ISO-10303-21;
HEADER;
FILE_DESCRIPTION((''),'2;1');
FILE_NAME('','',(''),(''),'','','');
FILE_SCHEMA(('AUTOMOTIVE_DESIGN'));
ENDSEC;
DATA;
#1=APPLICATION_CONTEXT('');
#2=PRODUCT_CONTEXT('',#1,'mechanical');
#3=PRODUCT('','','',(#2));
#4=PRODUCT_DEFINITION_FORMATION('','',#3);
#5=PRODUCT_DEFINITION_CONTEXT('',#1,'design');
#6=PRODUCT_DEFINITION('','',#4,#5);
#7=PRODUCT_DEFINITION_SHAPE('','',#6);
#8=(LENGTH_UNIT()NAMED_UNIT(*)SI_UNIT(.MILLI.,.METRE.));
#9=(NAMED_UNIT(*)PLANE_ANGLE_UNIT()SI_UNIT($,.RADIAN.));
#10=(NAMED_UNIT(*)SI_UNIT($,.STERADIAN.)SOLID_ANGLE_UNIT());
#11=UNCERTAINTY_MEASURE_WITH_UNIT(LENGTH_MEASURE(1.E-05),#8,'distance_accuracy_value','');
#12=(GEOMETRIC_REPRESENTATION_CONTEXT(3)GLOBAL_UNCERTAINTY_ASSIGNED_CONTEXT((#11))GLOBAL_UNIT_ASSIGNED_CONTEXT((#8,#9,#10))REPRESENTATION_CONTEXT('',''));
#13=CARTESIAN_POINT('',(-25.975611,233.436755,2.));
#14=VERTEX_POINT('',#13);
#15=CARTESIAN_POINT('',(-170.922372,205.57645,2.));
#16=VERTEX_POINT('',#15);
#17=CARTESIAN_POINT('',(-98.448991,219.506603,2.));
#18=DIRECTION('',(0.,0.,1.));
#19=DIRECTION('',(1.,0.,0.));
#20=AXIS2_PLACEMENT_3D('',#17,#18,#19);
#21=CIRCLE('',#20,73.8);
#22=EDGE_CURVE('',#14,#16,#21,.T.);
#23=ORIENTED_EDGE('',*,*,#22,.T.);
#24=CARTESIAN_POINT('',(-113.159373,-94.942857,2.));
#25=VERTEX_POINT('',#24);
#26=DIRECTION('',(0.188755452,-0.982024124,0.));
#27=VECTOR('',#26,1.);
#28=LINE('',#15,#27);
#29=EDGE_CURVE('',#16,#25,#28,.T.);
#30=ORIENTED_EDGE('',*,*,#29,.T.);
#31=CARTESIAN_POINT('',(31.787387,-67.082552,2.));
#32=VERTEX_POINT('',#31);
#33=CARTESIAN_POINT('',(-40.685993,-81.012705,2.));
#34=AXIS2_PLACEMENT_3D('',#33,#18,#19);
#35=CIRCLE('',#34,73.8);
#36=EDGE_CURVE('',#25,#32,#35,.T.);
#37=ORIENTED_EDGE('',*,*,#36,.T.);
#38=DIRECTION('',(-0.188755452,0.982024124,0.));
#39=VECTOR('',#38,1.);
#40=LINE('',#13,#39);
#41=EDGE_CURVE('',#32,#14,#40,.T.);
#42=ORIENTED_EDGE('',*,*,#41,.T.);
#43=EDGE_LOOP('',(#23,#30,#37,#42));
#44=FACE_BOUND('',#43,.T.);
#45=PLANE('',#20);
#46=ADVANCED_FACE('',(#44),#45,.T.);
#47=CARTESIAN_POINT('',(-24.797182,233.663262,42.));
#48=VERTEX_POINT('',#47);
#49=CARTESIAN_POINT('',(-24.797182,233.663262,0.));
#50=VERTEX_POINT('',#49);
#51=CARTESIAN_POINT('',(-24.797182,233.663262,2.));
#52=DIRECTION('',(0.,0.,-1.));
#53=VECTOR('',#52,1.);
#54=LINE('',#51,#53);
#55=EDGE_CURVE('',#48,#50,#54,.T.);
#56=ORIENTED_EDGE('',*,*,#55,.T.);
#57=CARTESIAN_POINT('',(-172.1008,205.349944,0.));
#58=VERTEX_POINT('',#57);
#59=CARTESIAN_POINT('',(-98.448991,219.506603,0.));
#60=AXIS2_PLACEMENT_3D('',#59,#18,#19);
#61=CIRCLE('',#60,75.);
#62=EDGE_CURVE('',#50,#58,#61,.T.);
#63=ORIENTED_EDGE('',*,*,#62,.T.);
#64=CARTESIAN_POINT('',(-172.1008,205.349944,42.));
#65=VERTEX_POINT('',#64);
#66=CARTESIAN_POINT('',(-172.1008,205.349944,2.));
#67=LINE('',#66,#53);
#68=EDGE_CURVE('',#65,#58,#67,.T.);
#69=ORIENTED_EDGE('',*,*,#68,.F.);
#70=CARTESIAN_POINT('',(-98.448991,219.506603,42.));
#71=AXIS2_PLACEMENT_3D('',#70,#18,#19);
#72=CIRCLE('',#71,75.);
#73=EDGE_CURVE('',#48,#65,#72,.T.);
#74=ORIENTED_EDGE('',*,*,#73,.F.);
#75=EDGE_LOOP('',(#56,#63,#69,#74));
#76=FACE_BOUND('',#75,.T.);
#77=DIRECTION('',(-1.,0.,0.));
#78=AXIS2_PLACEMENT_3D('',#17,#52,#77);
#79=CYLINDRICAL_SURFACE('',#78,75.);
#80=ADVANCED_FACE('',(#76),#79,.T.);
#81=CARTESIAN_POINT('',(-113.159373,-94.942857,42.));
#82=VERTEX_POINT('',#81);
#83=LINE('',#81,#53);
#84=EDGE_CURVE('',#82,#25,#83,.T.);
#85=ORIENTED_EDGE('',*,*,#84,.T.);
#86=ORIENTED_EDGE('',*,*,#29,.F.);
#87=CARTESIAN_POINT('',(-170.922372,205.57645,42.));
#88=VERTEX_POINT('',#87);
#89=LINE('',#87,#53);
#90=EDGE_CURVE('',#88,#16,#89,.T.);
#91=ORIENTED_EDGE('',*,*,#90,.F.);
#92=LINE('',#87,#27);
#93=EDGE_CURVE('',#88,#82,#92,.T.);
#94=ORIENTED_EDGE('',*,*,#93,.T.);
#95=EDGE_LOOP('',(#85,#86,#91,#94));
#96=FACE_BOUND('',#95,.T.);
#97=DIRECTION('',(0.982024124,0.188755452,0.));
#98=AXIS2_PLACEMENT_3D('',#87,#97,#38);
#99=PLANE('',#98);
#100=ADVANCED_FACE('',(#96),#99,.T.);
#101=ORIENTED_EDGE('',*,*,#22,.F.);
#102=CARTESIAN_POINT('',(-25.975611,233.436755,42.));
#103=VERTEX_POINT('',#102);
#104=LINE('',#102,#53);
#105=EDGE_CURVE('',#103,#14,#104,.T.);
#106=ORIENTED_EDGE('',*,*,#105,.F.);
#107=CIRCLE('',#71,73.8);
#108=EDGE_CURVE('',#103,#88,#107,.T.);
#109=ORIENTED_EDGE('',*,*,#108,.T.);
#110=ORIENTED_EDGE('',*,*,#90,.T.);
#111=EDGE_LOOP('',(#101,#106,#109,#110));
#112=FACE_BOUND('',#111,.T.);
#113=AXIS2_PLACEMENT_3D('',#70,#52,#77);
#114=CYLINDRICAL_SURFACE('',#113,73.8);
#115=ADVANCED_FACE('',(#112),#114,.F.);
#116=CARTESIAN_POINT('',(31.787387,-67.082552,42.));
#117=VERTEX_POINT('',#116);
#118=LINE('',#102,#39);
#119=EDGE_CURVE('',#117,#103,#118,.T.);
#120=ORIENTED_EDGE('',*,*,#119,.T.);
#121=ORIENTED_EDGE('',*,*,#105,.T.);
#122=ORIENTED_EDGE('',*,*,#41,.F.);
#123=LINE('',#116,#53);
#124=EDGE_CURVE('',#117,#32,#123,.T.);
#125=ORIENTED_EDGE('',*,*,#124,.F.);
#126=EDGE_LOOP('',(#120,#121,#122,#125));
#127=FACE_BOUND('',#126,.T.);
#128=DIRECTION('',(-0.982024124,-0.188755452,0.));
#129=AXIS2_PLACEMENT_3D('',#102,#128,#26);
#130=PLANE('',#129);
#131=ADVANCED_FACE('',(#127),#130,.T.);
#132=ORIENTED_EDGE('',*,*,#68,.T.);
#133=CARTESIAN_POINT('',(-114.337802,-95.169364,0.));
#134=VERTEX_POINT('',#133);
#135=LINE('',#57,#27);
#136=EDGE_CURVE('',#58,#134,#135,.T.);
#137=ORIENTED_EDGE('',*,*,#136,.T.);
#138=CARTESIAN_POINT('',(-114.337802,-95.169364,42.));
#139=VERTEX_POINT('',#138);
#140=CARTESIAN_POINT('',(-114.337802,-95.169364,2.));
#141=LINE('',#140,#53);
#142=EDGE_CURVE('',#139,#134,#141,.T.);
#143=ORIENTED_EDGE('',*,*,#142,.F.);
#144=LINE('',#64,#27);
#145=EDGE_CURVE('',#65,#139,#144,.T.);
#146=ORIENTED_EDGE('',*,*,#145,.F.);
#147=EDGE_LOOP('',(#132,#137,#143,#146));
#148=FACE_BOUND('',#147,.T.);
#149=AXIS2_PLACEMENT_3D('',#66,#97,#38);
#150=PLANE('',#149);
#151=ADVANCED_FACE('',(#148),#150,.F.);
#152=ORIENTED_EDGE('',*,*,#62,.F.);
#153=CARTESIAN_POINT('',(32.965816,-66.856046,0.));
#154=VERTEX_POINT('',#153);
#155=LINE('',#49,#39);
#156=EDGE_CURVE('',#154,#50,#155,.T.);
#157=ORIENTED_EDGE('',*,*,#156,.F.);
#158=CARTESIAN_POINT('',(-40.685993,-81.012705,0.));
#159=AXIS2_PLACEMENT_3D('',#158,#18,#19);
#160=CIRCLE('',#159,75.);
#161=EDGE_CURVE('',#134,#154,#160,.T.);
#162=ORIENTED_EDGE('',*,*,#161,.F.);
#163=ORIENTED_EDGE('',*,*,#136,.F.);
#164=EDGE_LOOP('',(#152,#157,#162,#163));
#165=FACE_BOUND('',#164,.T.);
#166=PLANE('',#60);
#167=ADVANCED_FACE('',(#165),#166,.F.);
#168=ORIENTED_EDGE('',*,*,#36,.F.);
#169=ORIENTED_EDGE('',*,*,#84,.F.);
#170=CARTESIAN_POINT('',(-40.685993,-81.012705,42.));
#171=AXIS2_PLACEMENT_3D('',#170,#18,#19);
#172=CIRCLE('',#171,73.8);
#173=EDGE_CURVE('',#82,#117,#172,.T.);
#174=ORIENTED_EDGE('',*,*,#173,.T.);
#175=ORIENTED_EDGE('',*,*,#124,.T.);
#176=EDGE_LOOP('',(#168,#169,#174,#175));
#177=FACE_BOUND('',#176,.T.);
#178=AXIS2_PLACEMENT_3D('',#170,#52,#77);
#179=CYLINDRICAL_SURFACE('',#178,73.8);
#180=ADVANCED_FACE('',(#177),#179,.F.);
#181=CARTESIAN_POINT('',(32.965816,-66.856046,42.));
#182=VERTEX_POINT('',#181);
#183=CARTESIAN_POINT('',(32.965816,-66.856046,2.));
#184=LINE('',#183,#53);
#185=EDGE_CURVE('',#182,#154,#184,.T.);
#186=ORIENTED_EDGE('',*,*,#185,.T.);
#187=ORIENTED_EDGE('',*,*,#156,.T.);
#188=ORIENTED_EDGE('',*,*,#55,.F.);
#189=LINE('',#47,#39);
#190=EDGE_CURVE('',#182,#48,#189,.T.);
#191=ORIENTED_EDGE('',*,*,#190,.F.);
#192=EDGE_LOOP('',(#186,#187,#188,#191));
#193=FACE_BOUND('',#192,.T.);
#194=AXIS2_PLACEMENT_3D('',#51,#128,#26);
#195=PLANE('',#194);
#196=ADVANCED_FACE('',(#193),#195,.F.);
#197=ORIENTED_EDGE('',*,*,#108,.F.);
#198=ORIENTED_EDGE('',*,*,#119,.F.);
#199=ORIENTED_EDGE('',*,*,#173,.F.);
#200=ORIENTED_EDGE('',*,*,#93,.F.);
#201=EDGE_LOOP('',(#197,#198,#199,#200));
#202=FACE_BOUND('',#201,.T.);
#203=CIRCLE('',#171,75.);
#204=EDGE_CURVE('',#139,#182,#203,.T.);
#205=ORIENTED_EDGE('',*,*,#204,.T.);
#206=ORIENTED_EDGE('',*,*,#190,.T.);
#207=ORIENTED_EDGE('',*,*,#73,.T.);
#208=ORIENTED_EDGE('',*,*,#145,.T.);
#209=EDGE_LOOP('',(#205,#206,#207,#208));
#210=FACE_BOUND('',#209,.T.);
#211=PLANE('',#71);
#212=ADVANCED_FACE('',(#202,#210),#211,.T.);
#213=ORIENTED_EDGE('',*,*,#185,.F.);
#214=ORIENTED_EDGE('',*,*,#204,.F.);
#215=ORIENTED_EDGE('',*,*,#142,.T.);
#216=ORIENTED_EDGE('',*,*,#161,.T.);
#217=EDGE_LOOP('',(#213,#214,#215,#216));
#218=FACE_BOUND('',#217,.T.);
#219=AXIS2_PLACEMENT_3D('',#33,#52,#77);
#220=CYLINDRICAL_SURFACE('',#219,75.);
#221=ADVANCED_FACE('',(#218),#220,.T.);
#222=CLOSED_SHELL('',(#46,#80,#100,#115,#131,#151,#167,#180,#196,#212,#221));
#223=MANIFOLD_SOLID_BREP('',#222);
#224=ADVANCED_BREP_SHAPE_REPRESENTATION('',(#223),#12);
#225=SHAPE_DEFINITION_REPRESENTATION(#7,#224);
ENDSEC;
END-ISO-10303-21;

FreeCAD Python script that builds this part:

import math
import FreeCAD as App
import Part
import Sketcher
from FreeCAD import Vector
Q = App.Units.Quantity

doc = App.newDocument("Part")
body = doc.addObject("PartDesign::Body", "Body")

# Sketch on XY plane
sketch1 = body.newObject("Sketcher::SketchObject", "Sketch")
sketch1.AttachmentSupport = (doc.getObject("XY_Plane"), [""])
sketch1.MapMode = "FlatFace"
sketch1.addGeometry(Part.LineSegment(Vector(33, -67, 0), Vector(-25, 234, 0)), False)
sketch1.addGeometry(Part.ArcOfCircle(Part.Circle(Vector(-98, 220, 0), Vector(0, 0, 1), 75), math.radians(11), math.radians(191)), False)
sketch1.addGeometry(Part.LineSegment(Vector(-172, 205, 0), Vector(-114, -95, 0)), False)
sketch1.addGeometry(Part.ArcOfCircle(Part.Circle(Vector(-41, -81, 0), Vector(0, 0, 1), 75), math.radians(-169), math.radians(11)), False)
sketch1.addConstraint(Sketcher.Constraint("Tangent", 0, 2, 1, 1))
sketch1.addConstraint(Sketcher.Constraint("Tangent", 1, 2, 2, 1))
sketch1.addConstraint(Sketcher.Constraint("Tangent", 2, 2, 3, 1))
sketch1.addConstraint(Sketcher.Constraint("Tangent", 3, 2, 0, 1))
sketch1.addConstraint(Sketcher.Constraint("Equal", 1, 3))
sketch1.addConstraint(Sketcher.Constraint("Radius", 1, Q("75 mm")))
sketch1.addConstraint(Sketcher.Constraint("DistanceX", 1, 3, 3, 3, Q("57.762998 mm")))
sketch1.addConstraint(Sketcher.Constraint("DistanceX", 1, 2, -1, 1, Q("172.1008 mm")))
sketch1.addConstraint(Sketcher.Constraint("Distance", 0, Q("306.020291 mm")))
sketch1.addConstraint(Sketcher.Constraint("DistanceY", -1, 1, 0, 2, Q("233.663262 mm")))
pad1 = body.newObject("PartDesign::Pad", "Pad")
pad1.Profile = sketch1
pad1.Length = 2

# Sketch on XY plane
sketch2 = body.newObject("Sketcher::SketchObject", "Sketch001")
sketch2.AttachmentSupport = (doc.getObject("XY_Plane"), [""])
sketch2.MapMode = "FlatFace"
sketch2.AttachmentOffset = App.Placement(Vector(0, 0, 2), App.Rotation())
sketch2.addGeometry(Part.LineSegment(Vector(33, -67, 0), Vector(-25, 234, 0)), False)
sketch2.addGeometry(Part.ArcOfCircle(Part.Circle(Vector(-98, 220, 0), Vector(0, 0, 1), 75), math.radians(11), math.radians(191)), False)
sketch2.addGeometry(Part.LineSegment(Vector(-172, 205, 0), Vector(-114, -95, 0)), False)
sketch2.addGeometry(Part.ArcOfCircle(Part.Circle(Vector(-41, -81, 0), Vector(0, 0, 1), 75), math.radians(-169), math.radians(11)), False)
sketch2.addGeometry(Part.LineSegment(Vector(-26, 233, 0), Vector(32, -67, 0)), False)
sketch2.addGeometry(Part.ArcOfCircle(Part.Circle(Vector(-41, -81, 0), Vector(0, 0, 1), 74), math.radians(-169), math.radians(11)), False)
sketch2.addGeometry(Part.LineSegment(Vector(-113, -95, 0), Vector(-171, 206, 0)), False)
sketch2.addGeometry(Part.ArcOfCircle(Part.Circle(Vector(-98, 220, 0), Vector(0, 0, 1), 74), math.radians(11), math.radians(191)), False)
sketch2.addConstraint(Sketcher.Constraint("Tangent", 0, 2, 1, 1))
sketch2.addConstraint(Sketcher.Constraint("Tangent", 1, 2, 2, 1))
sketch2.addConstraint(Sketcher.Constraint("Tangent", 2, 2, 3, 1))
sketch2.addConstraint(Sketcher.Constraint("Tangent", 3, 2, 0, 1))
sketch2.addConstraint(Sketcher.Constraint("Tangent", 4, 2, 5, 2))
sketch2.addConstraint(Sketcher.Constraint("Tangent", 5, 1, 6, 1))
sketch2.addConstraint(Sketcher.Constraint("Tangent", 6, 2, 7, 2))
sketch2.addConstraint(Sketcher.Constraint("Tangent", 7, 1, 4, 1))
sketch2.addConstraint(Sketcher.Constraint("Coincident", 5, 3, 3, 3))
sketch2.addConstraint(Sketcher.Constraint("Coincident", 7, 3, 1, 3))
sketch2.addConstraint(Sketcher.Constraint("Equal", 1, 3))
sketch2.addConstraint(Sketcher.Constraint("Equal", 5, 7))
sketch2.addConstraint(Sketcher.Constraint("Radius", 1, Q("75 mm")))
sketch2.addConstraint(Sketcher.Constraint("Radius", 5, Q("73.8 mm")))
sketch2.addConstraint(Sketcher.Constraint("DistanceX", 1, 3, 3, 3, Q("57.762998 mm")))
sketch2.addConstraint(Sketcher.Constraint("DistanceX", 1, 2, -1, 1, Q("172.1008 mm")))
sketch2.addConstraint(Sketcher.Constraint("Distance", 0, Q("306.020291 mm")))
sketch2.addConstraint(Sketcher.Constraint("DistanceY", -1, 1, 0, 2, Q("233.663262 mm")))
pad2 = body.newObject("PartDesign::Pad", "Pad001")
pad2.Profile = sketch2
pad2.Length = 40

doc.recompute()
